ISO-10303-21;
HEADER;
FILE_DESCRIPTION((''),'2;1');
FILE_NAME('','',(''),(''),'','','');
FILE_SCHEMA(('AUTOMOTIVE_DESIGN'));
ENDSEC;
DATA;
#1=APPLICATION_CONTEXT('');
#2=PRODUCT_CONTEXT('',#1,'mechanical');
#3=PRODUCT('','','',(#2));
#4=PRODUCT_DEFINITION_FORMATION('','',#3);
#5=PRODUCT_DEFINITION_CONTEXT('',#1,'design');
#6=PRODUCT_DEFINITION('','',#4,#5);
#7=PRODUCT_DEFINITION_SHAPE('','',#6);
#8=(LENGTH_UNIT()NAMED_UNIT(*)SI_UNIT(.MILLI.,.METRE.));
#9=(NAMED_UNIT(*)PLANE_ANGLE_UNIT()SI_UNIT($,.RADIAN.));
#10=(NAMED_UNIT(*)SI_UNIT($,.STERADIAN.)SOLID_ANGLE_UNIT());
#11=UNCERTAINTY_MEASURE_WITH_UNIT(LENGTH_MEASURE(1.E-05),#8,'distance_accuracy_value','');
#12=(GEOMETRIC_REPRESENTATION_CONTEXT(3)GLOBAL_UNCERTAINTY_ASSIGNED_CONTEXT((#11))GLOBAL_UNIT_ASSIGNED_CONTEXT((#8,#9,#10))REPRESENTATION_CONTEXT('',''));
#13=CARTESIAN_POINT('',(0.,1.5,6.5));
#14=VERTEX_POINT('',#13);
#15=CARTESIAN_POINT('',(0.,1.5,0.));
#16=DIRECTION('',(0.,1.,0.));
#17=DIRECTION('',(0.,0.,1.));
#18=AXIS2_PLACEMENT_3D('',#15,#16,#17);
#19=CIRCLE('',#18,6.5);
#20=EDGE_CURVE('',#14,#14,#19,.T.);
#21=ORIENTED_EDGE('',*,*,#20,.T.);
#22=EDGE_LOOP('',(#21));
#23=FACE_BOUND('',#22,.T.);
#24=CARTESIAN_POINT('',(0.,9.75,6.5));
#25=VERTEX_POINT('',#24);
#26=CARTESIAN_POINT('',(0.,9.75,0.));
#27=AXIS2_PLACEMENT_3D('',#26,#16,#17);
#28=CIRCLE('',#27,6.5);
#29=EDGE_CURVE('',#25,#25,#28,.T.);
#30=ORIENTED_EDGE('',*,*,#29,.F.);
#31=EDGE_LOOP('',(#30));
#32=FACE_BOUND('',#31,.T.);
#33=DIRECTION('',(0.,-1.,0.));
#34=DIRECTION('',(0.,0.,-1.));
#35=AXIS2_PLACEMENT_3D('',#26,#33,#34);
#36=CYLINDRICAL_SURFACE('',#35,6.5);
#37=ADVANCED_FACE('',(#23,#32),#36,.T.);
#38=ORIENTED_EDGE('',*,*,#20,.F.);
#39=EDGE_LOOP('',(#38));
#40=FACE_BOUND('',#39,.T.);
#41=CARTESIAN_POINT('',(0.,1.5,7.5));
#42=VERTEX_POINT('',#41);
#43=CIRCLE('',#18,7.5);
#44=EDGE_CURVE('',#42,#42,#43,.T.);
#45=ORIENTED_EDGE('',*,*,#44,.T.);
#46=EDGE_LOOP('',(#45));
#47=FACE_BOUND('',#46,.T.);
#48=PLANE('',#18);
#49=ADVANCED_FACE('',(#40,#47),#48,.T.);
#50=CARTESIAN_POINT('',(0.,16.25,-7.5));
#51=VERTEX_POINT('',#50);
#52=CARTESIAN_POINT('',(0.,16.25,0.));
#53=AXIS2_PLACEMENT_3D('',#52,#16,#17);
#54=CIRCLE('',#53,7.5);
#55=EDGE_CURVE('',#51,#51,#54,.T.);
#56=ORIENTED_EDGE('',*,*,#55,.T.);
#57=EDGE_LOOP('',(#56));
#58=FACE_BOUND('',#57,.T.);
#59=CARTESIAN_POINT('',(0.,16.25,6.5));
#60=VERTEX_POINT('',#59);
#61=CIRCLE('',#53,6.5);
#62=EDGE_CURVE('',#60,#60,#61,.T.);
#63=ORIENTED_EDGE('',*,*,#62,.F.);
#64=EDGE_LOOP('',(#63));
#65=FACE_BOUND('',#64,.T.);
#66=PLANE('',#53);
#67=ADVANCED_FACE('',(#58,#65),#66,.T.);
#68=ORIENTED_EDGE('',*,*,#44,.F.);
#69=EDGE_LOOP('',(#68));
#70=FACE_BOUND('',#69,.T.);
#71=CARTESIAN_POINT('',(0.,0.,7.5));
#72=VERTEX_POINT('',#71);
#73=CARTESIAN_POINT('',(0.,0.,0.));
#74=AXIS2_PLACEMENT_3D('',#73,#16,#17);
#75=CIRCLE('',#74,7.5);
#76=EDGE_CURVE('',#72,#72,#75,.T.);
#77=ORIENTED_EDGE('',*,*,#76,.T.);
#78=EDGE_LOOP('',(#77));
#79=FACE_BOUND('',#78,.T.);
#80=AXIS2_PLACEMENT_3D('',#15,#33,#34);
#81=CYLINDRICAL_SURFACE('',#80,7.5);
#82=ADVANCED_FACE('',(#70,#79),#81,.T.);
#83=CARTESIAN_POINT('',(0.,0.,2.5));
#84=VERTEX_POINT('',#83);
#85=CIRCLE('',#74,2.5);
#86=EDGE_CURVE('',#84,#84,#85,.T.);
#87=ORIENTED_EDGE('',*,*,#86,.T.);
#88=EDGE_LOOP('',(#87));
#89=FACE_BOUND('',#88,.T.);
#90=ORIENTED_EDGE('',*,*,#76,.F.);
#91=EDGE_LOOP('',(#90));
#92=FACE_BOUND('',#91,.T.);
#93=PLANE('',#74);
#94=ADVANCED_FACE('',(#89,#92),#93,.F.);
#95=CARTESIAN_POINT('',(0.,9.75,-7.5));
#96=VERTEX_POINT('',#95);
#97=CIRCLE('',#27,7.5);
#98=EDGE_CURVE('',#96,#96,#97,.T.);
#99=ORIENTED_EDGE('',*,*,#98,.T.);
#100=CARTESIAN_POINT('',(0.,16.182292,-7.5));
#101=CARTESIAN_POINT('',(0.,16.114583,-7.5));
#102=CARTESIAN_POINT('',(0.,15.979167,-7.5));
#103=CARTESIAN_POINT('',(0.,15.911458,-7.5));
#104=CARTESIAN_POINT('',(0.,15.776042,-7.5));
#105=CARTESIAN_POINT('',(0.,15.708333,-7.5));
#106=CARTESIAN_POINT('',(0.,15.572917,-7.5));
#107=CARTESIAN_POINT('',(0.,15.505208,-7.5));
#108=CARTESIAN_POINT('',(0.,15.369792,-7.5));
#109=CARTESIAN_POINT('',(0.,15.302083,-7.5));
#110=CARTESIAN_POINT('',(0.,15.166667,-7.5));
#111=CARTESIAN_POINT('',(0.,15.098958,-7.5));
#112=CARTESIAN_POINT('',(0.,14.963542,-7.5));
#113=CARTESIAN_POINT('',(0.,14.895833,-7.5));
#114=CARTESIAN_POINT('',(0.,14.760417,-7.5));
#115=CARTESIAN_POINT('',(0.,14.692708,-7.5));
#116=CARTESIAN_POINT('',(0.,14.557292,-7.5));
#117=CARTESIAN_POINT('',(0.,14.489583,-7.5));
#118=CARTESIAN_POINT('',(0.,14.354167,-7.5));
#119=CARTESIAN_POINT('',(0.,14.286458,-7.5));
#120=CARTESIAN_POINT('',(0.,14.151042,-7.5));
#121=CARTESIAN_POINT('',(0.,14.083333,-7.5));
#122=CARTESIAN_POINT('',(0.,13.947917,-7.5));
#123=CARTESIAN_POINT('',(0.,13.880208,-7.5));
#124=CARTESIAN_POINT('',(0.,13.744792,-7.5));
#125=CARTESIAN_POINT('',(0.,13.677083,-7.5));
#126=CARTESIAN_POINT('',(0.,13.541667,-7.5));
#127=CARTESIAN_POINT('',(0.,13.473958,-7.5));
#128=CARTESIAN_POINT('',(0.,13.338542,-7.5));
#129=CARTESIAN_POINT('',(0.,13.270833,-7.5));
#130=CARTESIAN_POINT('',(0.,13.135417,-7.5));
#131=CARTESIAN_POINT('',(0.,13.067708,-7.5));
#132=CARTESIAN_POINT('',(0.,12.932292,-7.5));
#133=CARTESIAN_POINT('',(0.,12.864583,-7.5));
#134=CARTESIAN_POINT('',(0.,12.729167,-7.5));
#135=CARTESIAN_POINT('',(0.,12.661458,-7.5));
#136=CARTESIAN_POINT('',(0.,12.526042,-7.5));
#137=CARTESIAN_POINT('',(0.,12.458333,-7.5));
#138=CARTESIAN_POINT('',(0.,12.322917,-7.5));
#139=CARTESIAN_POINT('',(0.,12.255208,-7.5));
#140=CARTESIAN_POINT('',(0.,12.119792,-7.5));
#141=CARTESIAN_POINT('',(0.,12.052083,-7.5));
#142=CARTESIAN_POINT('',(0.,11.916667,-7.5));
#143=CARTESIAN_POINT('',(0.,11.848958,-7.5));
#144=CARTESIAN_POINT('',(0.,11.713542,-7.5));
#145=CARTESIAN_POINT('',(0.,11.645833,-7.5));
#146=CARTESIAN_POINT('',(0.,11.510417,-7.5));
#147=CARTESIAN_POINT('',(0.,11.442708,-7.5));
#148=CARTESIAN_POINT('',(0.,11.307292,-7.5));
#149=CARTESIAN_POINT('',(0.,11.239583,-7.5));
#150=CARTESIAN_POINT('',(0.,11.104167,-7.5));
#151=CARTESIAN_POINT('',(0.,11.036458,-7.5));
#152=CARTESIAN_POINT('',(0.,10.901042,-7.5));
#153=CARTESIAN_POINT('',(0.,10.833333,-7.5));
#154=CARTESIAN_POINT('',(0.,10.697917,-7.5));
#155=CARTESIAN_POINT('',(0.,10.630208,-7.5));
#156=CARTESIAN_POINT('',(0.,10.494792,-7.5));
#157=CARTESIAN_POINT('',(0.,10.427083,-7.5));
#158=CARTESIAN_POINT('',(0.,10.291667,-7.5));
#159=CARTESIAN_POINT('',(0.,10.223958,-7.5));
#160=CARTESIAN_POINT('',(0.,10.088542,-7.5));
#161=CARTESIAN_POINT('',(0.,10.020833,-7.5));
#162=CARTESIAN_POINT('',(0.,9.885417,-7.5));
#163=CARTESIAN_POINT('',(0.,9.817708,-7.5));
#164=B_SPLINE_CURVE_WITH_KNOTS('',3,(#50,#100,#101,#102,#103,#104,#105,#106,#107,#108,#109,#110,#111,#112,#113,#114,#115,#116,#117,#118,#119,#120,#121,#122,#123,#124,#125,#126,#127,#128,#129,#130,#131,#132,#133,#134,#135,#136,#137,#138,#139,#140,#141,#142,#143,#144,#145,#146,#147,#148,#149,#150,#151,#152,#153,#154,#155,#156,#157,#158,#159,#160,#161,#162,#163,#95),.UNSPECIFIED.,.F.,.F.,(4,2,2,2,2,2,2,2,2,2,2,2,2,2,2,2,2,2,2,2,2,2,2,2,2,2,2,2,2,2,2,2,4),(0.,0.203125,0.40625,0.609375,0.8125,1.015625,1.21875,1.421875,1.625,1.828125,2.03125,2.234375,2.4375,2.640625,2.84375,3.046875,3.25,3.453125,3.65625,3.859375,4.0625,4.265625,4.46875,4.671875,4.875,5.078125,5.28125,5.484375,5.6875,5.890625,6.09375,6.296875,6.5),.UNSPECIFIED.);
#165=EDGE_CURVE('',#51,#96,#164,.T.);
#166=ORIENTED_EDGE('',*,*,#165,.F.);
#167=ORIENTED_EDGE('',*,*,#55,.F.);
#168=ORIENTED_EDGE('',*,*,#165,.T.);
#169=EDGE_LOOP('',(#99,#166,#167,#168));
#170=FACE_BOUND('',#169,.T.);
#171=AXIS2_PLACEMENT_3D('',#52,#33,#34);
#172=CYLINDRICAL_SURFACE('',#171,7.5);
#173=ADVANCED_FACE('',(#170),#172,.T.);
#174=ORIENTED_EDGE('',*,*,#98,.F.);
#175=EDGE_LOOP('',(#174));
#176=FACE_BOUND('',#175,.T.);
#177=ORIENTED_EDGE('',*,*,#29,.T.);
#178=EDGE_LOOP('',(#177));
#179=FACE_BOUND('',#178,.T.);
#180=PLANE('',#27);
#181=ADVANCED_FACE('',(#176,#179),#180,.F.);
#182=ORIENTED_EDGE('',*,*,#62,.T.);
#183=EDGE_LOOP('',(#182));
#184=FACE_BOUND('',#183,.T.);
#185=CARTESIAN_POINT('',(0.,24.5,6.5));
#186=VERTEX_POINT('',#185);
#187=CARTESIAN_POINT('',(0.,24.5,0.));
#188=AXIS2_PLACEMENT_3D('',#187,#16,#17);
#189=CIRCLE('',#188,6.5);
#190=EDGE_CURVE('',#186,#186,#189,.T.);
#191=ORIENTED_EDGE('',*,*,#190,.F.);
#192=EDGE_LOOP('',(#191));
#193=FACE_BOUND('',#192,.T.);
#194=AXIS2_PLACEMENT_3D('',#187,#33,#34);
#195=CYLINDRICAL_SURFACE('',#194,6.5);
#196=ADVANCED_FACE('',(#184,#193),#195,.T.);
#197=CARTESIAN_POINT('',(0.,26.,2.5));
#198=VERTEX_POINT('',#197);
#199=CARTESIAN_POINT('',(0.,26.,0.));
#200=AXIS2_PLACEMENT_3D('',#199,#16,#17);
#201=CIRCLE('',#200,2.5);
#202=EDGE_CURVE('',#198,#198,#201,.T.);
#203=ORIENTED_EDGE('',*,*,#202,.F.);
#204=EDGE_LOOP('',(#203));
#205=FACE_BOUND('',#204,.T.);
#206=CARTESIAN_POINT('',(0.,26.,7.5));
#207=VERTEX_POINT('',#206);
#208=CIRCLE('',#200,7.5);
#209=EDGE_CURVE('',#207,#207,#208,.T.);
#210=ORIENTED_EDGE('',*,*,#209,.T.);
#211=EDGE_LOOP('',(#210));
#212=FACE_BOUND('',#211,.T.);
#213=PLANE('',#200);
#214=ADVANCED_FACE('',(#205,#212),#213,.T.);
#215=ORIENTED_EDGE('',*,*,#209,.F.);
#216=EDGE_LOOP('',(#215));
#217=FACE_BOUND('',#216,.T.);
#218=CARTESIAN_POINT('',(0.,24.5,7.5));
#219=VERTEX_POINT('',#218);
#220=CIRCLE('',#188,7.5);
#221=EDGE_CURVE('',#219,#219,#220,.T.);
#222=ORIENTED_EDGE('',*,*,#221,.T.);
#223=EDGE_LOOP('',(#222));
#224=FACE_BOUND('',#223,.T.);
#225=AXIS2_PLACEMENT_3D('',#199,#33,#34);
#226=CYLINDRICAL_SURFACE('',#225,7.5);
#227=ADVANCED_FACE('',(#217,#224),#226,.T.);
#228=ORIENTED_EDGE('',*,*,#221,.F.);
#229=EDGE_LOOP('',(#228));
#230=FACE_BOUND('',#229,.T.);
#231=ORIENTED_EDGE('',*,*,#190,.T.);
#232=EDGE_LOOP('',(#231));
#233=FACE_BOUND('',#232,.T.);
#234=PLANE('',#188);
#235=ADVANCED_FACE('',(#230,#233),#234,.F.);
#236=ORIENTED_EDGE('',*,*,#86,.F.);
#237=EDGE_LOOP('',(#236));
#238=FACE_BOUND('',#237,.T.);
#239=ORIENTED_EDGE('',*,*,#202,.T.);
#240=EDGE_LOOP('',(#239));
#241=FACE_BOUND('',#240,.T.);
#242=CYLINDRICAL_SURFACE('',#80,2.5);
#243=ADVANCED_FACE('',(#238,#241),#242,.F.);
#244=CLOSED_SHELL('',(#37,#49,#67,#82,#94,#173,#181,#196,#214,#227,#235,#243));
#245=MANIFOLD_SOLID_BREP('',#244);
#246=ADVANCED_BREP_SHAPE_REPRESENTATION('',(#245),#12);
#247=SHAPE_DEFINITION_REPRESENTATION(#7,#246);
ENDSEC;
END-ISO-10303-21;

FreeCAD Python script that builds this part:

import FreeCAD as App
import Part
import Sketcher

V = App.Vector

doc = App.newDocument("Part")
body = doc.addObject("PartDesign::Body", "Body")

# Sketch on XZ plane
sketch1 = doc.addObject("Sketcher::SketchObject", "Sketch")
body.addObject(sketch1)
sketch1.AttachmentSupport = (doc.XZ_Plane, [""])
sketch1.MapMode = "FlatFace"
sketch1.addGeometry(Part.Circle(V(0, 0, 0), V(0, 0, 1), 7.5), False)
sketch1.addGeometry(Part.Circle(V(0, 0, 0), V(0, 0, 1), 2.5), False)
sketch1.addConstraint(Sketcher.Constraint("Coincident", 0, 3, -1, 1))
sketch1.addConstraint(Sketcher.Constraint("Coincident", 1, 3, -1, 1))
sketch1.addConstraint(Sketcher.Constraint("Diameter", 0, 15.0))
sketch1.addConstraint(Sketcher.Constraint("Diameter", 1, 5.0))
pad1 = doc.addObject("PartDesign::Pad", "Pad")
body.addObject(pad1)
pad1.Profile = sketch1
pad1.Length = 1.5
pad1.Reversed = True

# Sketch on XZ plane
sketch2 = doc.addObject("Sketcher::SketchObject", "Sketch001")
body.addObject(sketch2)
sketch2.AttachmentSupport = (doc.XZ_Plane, [""])
sketch2.MapMode = "FlatFace"
sketch2.AttachmentOffset = App.Placement(V(0, 0, -1.5), App.Rotation())
sketch2.addGeometry(Part.Circle(V(0, 0, 0), V(0, 0, 1), 6.5), False)
sketch2.addGeometry(Part.Circle(V(0, 0, 0), V(0, 0, 1), 2.5), False)
sketch2.addConstraint(Sketcher.Constraint("Coincident", 0, 3, -1, 1))
sketch2.addConstraint(Sketcher.Constraint("Coincident", 1, 3, -1, 1))
sketch2.addConstraint(Sketcher.Constraint("Diameter", 0, 13.0))
sketch2.addConstraint(Sketcher.Constraint("Diameter", 1, 5.0))
pad2 = doc.addObject("PartDesign::Pad", "Pad001")
body.addObject(pad2)
pad2.Profile = sketch2
pad2.Length = 8.25
pad2.Reversed = True

# Sketch on XZ plane
sketch3 = doc.addObject("Sketcher::SketchObject", "Sketch002")
body.addObject(sketch3)
sketch3.AttachmentSupport = (doc.XZ_Plane, [""])
sketch3.MapMode = "FlatFace"
sketch3.AttachmentOffset = App.Placement(V(0, 0, -9.75), App.Rotation())
sketch3.addGeometry(Part.Circle(V(0, 0, 0), V(0, 0, 1), 7.5), False)
sketch3.addGeometry(Part.Circle(V(0, 0, 0), V(0, 0, 1), 2.5), False)
sketch3.addConstraint(Sketcher.Constraint("Coincident", 0, 3, -1, 1))
sketch3.addConstraint(Sketcher.Constraint("Coincident", 1, 3, -1, 1))
sketch3.addConstraint(Sketcher.Constraint("Diameter", 0, 15.0))
sketch3.addConstraint(Sketcher.Constraint("Diameter", 1, 5.0))
pad3 = doc.addObject("PartDesign::Pad", "Pad002")
body.addObject(pad3)
pad3.Profile = sketch3
pad3.Length = 6.5
pad3.Reversed = True

# Sketch on XZ plane
sketch4 = doc.addObject("Sketcher::SketchObject", "Sketch003")
body.addObject(sketch4)
sketch4.AttachmentSupport = (doc.XZ_Plane, [""])
sketch4.MapMode = "FlatFace"
sketch4.AttachmentOffset = App.Placement(V(0, 0, -16.25), App.Rotation())
sketch4.addGeometry(Part.Circle(V(0, 0, 0), V(0, 0, 1), 6.5), False)
sketch4.addGeometry(Part.Circle(V(0, 0, 0), V(0, 0, 1), 2.5), False)
sketch4.addConstraint(Sketcher.Constraint("Coincident", 0, 3, -1, 1))
sketch4.addConstraint(Sketcher.Constraint("Coincident", 1, 3, -1, 1))
sketch4.addConstraint(Sketcher.Constraint("Diameter", 0, 13.0))
sketch4.addConstraint(Sketcher.Constraint("Diameter", 1, 5.0))
pad4 = doc.addObject("PartDesign::Pad", "Pad003")
body.addObject(pad4)
pad4.Profile = sketch4
pad4.Length = 8.25
pad4.Reversed = True

# Sketch on XZ plane
sketch5 = doc.addObject("Sketcher::SketchObject", "Sketch004")
body.addObject(sketch5)
sketch5.AttachmentSupport = (doc.XZ_Plane, [""])
sketch5.MapMode = "FlatFace"
sketch5.AttachmentOffset = App.Placement(V(0, 0, -24.5), App.Rotation())
sketch5.addGeometry(Part.Circle(V(0, 0, 0), V(0, 0, 1), 7.5), False)
sketch5.addGeometry(Part.Circle(V(0, 0, 0), V(0, 0, 1), 2.5), False)
sketch5.addConstraint(Sketcher.Constraint("Coincident", 0, 3, -1, 1))
sketch5.addConstraint(Sketcher.Constraint("Coincident", 1, 3, -1, 1))
sketch5.addConstraint(Sketcher.Constraint("Diameter", 0, 15.0))
sketch5.addConstraint(Sketcher.Constraint("Diameter", 1, 5.0))
pad5 = doc.addObject("PartDesign::Pad", "Pad004")
body.addObject(pad5)
pad5.Profile = sketch5
pad5.Length = 1.5
pad5.Reversed = True

doc.recompute()
